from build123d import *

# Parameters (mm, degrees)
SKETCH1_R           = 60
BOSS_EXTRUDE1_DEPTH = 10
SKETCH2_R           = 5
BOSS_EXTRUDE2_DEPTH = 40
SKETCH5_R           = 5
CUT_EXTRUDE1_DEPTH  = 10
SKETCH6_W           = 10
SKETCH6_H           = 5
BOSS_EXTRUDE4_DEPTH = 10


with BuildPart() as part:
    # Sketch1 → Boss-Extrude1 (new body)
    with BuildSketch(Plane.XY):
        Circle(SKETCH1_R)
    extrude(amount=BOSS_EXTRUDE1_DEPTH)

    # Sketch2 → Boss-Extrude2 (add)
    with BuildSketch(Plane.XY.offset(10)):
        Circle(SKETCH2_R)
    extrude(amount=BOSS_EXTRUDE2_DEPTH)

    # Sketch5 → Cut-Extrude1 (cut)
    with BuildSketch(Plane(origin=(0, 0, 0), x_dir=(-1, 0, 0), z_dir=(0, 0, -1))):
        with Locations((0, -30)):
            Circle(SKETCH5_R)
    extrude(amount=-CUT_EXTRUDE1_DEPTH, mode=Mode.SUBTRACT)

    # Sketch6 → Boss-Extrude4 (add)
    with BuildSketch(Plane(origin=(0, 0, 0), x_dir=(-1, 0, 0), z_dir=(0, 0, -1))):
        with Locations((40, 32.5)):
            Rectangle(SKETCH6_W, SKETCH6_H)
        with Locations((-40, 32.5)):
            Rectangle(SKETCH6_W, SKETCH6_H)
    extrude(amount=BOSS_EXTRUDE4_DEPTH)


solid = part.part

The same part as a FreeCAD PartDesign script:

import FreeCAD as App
import Part
import Sketcher

doc = App.newDocument("Part")
params = doc.addObject("Spreadsheet::Sheet", "Params")
for row, (alias, value) in enumerate([
    ("sketch1_diameter", "120 mm"),
    ("pad1_length", "10 mm"),
    ("sketch2_diameter", "10 mm"),
    ("pad2_length", "40 mm"),
    ("sketch3_diameter", "10 mm"),
    ("pocket1_length", "10 mm"),
    ("sketch4_width", "10 mm"),
    ("sketch4_height", "5 mm"),
    ("pad3_length", "10 mm"),
], start=1):
    params.set(f"A{row}", alias)
    params.set(f"B{row}", "=" + value)
    params.setAlias(f"B{row}", alias)

body = doc.addObject("PartDesign::Body", "Body")

# Sketch on XY plane
sketch1 = body.newObject("Sketcher::SketchObject", "Sketch")
sketch1.AttachmentSupport = (doc.getObject("XY_Plane"), [""])
sketch1.MapMode = "FlatFace"
sketch1.addGeometry(Part.Circle(App.Vector(0, 0, 0), App.Vector(0, 0, 1), 60), False)
sketch1.addConstraint([
    Sketcher.Constraint("Coincident", 0, 3, -1, 1),
    Sketcher.Constraint("Diameter", 0, 120.0),
])
sketch1.setExpression("Constraints[1]", "Params.sketch1_diameter")
pad1 = body.newObject("PartDesign::Pad", "Pad")
pad1.Profile = sketch1
pad1.setExpression("Length", "Params.pad1_length")

# Sketch on XY plane
sketch2 = body.newObject("Sketcher::SketchObject", "Sketch001")
sketch2.AttachmentSupport = (doc.getObject("XY_Plane"), [""])
sketch2.MapMode = "FlatFace"
sketch2.AttachmentOffset = App.Placement(App.Vector(0, 0, 10), App.Rotation())
sketch2.addGeometry(Part.Circle(App.Vector(0, 0, 0), App.Vector(0, 0, 1), 5), False)
sketch2.addConstraint([
    Sketcher.Constraint("Coincident", 0, 3, -1, 1),
    Sketcher.Constraint("Diameter", 0, 10.0),
])
sketch2.setExpression("Constraints[1]", "Params.sketch2_diameter")
pad2 = body.newObject("PartDesign::Pad", "Pad001")
pad2.Profile = sketch2
pad2.setExpression("Length", "Params.pad2_length")

# Sketch on XY plane
sketch3 = body.newObject("Sketcher::SketchObject", "Sketch002")
sketch3.AttachmentSupport = (doc.getObject("XY_Plane"), [""])
sketch3.MapMode = "FlatFace"
sketch3.addGeometry(Part.Circle(App.Vector(0, -30, 0), App.Vector(0, 0, 1), 5), False)
sketch3.addConstraint([
    Sketcher.Constraint("PointOnObject", 0, 3, -2),
    Sketcher.Constraint("Diameter", 0, 10.0),
    Sketcher.Constraint("DistanceY", 0, 3, -1, 1, 30.0),
])
sketch3.setExpression("Constraints[1]", "Params.sketch3_diameter")
pocket1 = body.newObject("PartDesign::Pocket", "Pocket")
pocket1.Profile = sketch3
pocket1.setExpression("Length", "Params.pocket1_length")
pocket1.Reversed = True

# Sketch on XY plane
sketch4 = body.newObject("Sketcher::SketchObject", "Sketch003")
sketch4.AttachmentSupport = (doc.getObject("XY_Plane"), [""])
sketch4.MapMode = "FlatFace"
sketch4.addGeometry([
    Part.LineSegment(App.Vector(-35, 35, 0), App.Vector(-35, 30, 0)),  # 0
    Part.LineSegment(App.Vector(-35, 30, 0), App.Vector(-45, 30, 0)),  # 1
    Part.LineSegment(App.Vector(-45, 30, 0), App.Vector(-45, 35, 0)),  # 2
    Part.LineSegment(App.Vector(-45, 35, 0), App.Vector(-35, 35, 0)),  # 3
    Part.LineSegment(App.Vector(45, 35, 0), App.Vector(45, 30, 0)),  # 4
    Part.LineSegment(App.Vector(45, 30, 0), App.Vector(35, 30, 0)),  # 5
    Part.LineSegment(App.Vector(35, 30, 0), App.Vector(35, 35, 0)),  # 6
    Part.LineSegment(App.Vector(35, 35, 0), App.Vector(45, 35, 0)),  # 7
], False)
sketch4.addConstraint([
    Sketcher.Constraint("Coincident", 0, 2, 1, 1),
    Sketcher.Constraint("Coincident", 1, 2, 2, 1),
    Sketcher.Constraint("Coincident", 2, 2, 3, 1),
    Sketcher.Constraint("Coincident", 3, 2, 0, 1),
    Sketcher.Constraint("Coincident", 4, 2, 5, 1),
    Sketcher.Constraint("Coincident", 5, 2, 6, 1),
    Sketcher.Constraint("Coincident", 6, 2, 7, 1),
    Sketcher.Constraint("Coincident", 7, 2, 4, 1),
    Sketcher.Constraint("Vertical", 0),
    Sketcher.Constraint("Horizontal", 1),
    Sketcher.Constraint("Vertical", 2),
    Sketcher.Constraint("Horizontal", 3),
    Sketcher.Constraint("Vertical", 4),
    Sketcher.Constraint("Horizontal", 5),
    Sketcher.Constraint("Vertical", 6),
    Sketcher.Constraint("Horizontal", 7),
    Sketcher.Constraint("Symmetric", 1, 2, 4, 2, -2),
    Sketcher.Constraint("Symmetric", 3, 2, 6, 2, -2),
    Sketcher.Constraint("DistanceX", 1, 2, 1, 1, 10.0),
    Sketcher.Constraint("DistanceY", 0, 2, 0, 1, 5.0),
    Sketcher.Constraint("DistanceX", 0, 2, -1, 1, 35.0),
    Sketcher.Constraint("DistanceY", -1, 1, 0, 2, 30.0),
])
sketch4.setExpression("Constraints[18]", "Params.sketch4_width")
sketch4.setExpression("Constraints[19]", "Params.sketch4_height")
pad3 = body.newObject("PartDesign::Pad", "Pad002")
pad3.Profile = sketch4
pad3.setExpression("Length", "Params.pad3_length")
pad3.Reversed = True

doc.recompute()
